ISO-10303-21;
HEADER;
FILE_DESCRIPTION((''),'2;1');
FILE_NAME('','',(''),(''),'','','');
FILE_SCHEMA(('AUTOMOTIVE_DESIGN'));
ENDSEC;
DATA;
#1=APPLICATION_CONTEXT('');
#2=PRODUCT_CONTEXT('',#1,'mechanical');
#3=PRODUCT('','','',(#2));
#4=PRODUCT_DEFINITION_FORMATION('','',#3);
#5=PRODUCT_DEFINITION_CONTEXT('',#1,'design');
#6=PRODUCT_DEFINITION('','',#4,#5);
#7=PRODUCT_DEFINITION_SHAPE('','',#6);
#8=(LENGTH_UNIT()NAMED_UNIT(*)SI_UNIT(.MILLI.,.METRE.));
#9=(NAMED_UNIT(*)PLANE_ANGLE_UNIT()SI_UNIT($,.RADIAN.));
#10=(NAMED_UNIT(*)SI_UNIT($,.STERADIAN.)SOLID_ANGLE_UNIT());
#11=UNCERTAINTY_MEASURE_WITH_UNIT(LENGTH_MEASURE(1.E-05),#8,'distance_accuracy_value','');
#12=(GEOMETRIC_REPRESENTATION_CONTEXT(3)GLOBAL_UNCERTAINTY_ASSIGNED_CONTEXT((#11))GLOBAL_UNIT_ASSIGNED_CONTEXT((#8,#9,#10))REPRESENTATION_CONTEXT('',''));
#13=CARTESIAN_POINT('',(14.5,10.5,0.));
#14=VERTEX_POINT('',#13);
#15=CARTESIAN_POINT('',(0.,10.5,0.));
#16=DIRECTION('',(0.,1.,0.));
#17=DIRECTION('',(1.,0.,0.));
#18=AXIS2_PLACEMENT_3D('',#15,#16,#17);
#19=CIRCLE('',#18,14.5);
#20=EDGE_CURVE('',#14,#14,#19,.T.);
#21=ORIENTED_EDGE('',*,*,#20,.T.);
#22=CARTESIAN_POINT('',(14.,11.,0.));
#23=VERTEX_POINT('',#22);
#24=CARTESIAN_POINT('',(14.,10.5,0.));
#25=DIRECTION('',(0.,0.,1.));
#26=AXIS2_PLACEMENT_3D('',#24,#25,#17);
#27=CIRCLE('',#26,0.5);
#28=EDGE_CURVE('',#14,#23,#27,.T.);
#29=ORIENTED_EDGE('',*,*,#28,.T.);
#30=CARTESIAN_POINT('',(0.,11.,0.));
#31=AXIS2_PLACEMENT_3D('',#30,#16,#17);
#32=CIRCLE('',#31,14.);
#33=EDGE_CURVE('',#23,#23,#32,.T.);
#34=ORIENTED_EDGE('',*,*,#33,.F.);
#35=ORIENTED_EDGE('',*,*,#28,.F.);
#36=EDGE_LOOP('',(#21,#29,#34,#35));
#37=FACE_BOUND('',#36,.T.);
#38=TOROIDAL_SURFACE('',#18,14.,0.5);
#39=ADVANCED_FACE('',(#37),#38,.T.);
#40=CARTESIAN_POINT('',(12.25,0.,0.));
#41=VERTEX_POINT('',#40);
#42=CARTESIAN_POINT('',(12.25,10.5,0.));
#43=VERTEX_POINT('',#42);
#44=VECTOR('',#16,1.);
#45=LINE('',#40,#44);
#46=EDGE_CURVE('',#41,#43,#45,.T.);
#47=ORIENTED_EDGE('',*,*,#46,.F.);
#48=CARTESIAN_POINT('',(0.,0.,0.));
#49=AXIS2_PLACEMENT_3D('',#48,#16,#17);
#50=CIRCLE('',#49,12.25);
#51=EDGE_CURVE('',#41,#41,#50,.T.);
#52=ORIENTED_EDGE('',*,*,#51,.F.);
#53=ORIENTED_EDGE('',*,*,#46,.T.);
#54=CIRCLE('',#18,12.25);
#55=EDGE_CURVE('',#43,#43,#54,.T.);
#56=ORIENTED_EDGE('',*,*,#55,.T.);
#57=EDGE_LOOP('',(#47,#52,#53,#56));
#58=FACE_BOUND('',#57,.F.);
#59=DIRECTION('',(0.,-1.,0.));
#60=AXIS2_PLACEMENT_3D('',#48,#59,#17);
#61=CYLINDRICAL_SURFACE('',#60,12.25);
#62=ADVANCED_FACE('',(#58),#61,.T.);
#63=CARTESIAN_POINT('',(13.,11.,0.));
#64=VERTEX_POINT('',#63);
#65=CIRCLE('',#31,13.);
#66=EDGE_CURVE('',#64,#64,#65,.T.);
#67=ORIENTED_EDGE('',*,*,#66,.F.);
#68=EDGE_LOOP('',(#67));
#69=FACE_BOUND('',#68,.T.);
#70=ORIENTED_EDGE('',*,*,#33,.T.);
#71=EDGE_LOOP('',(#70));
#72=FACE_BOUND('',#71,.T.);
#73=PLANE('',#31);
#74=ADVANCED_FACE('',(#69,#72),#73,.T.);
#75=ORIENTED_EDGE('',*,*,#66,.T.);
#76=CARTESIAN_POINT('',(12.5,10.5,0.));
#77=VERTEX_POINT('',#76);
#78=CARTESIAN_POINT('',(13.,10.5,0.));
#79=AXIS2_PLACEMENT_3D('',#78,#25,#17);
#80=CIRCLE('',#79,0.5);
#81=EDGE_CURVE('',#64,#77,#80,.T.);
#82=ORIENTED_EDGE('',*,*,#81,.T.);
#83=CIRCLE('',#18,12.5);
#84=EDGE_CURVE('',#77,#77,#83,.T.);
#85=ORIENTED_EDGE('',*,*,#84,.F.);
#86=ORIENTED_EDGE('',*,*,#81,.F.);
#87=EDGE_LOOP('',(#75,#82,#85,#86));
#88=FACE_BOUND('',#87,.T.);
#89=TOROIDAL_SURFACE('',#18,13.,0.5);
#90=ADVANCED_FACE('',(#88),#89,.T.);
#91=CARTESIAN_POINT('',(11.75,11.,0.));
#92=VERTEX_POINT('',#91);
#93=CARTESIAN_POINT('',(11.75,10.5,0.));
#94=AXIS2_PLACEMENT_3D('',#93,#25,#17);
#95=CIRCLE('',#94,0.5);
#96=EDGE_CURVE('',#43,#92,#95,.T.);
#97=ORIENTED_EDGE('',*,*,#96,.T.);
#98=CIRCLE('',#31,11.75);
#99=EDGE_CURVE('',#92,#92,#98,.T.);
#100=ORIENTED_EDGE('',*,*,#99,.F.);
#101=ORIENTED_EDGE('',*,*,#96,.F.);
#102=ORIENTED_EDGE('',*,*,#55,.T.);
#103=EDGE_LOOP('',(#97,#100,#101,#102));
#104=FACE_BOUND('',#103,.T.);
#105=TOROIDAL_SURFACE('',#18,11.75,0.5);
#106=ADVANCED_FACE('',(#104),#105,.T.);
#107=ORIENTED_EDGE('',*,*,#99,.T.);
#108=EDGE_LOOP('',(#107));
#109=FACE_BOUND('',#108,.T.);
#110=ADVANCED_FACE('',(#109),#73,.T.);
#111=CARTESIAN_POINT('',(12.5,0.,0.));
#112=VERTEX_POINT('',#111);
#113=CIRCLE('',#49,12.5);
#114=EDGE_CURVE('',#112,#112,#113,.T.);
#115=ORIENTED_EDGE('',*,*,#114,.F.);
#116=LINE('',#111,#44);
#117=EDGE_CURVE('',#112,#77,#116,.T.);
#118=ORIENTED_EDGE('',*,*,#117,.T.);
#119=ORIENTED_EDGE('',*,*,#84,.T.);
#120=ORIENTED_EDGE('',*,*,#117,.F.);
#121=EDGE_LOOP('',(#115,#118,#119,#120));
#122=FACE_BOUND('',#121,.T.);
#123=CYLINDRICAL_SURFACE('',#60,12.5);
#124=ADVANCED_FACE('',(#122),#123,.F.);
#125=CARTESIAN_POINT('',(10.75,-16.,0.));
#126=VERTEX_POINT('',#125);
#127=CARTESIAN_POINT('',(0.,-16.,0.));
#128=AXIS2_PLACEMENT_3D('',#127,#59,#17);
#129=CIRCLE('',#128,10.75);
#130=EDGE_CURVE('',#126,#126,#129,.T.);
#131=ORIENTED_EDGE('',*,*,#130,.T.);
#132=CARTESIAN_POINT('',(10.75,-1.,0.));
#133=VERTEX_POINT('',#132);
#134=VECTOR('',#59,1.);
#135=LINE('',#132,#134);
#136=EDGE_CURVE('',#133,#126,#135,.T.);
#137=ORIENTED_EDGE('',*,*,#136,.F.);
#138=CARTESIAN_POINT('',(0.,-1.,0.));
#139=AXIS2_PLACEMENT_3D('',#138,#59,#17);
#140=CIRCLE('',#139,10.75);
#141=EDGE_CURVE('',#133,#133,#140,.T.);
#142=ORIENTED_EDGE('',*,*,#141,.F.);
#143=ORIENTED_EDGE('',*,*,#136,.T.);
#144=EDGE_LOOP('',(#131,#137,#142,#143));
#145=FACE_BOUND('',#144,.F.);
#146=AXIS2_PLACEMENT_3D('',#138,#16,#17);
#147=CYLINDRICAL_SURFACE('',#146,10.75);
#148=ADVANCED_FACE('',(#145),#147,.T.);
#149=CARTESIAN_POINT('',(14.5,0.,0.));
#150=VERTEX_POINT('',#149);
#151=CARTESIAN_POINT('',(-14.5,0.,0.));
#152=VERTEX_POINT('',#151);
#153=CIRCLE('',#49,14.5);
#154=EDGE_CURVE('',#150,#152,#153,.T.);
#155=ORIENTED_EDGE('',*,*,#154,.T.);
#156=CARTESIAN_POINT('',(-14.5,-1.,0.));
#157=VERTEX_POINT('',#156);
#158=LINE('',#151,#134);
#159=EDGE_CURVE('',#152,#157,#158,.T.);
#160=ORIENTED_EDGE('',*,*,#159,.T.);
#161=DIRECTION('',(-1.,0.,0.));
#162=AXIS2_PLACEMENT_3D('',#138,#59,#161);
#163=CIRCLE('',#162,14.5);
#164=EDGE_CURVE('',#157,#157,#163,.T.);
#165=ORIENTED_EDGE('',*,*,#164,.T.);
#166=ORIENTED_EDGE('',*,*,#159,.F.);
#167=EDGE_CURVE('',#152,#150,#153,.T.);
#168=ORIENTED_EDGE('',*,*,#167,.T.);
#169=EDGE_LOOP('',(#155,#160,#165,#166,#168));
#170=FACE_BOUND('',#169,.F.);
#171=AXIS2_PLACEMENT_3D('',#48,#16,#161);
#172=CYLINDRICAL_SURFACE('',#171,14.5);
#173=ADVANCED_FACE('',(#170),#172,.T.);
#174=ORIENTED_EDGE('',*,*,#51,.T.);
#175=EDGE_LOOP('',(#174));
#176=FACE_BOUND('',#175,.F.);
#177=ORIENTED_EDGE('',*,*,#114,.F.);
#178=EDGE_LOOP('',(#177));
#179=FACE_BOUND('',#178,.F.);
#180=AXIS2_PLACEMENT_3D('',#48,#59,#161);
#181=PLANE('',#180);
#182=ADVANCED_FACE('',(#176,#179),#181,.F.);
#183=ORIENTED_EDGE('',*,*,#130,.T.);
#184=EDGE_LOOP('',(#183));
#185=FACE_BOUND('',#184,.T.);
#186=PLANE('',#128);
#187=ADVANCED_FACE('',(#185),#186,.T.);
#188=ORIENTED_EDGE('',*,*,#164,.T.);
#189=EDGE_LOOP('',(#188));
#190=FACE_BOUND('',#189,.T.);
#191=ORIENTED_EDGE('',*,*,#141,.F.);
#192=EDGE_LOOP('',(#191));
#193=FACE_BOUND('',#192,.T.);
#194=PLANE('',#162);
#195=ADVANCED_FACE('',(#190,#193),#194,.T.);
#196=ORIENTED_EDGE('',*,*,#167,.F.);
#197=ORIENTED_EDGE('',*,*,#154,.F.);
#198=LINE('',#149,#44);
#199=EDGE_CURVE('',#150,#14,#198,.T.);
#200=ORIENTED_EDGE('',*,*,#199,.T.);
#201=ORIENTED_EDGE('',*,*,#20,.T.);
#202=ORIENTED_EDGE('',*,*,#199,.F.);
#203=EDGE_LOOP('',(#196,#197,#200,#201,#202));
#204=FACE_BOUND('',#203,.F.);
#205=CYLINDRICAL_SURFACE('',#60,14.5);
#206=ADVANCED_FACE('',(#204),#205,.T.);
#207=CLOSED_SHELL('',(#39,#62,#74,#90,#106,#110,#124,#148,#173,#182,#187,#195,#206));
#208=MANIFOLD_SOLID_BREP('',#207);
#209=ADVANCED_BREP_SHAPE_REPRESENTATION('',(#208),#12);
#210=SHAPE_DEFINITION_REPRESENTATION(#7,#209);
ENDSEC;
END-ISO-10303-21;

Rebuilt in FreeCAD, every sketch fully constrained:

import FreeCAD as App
import Part
import Sketcher
Q = App.Units.Quantity


def edges_at(feature, points):
    """Names of the edges that pass closest to the given points."""
    edges = feature.Shape.Edges
    near = lambda p: min(range(len(edges)), key=lambda i: edges[i].distToShape(Part.Vertex(*p))[0])
    return sorted({f"Edge{near(p) + 1}" for p in points})

doc = App.newDocument("Part")
body = doc.addObject("PartDesign::Body", "Body")

# Sketch on XZ plane
sketch1 = body.newObject("Sketcher::SketchObject", "Sketch")
sketch1.AttachmentSupport = (doc.getObject("XZ_Plane"), [""])
sketch1.MapMode = "FlatFace"
sketch1.addGeometry([
    Part.Circle(App.Vector(0, 0, 0), App.Vector(0, 0, 1), 14),
    Part.Circle(App.Vector(0, 0, 0), App.Vector(0, 0, 1), 12),
], False)
sketch1.addConstraint([
    Sketcher.Constraint("Coincident", 0, 3, -1, 1),
    Sketcher.Constraint("Coincident", 1, 3, -1, 1),
    Sketcher.Constraint("Diameter", 0, Q("29 mm")),
    Sketcher.Constraint("Diameter", 1, Q("25 mm")),
])
pad1 = body.newObject("PartDesign::Pad", "Pad")
pad1.Profile = sketch1
pad1.Length = 11
pad1.Reversed = True

# Sketch on XZ plane
sketch2 = body.newObject("Sketcher::SketchObject", "Sketch001")
sketch2.AttachmentSupport = (doc.getObject("XZ_Plane"), [""])
sketch2.MapMode = "FlatFace"
sketch2.addGeometry(Part.Circle(App.Vector(0, 0, 0), App.Vector(0, 0, 1), 14), False)
sketch2.addConstraint([
    Sketcher.Constraint("Coincident", 0, 3, -1, 1),
    Sketcher.Constraint("Diameter", 0, Q("29 mm")),
])
pad2 = body.newObject("PartDesign::Pad", "Pad001")
pad2.Profile = sketch2
pad2.Length = 1

# Sketch on XZ plane
sketch3 = body.newObject("Sketcher::SketchObject", "Sketch002")
sketch3.AttachmentSupport = (doc.getObject("XZ_Plane"), [""])
sketch3.MapMode = "FlatFace"
sketch3.AttachmentOffset = App.Placement(App.Vector(0, 0, 1), App.Rotation())
sketch3.addGeometry(Part.Circle(App.Vector(0, 0, 0), App.Vector(0, 0, 1), 11), False)
sketch3.addConstraint([
    Sketcher.Constraint("Coincident", 0, 3, -1, 1),
    Sketcher.Constraint("Diameter", 0, Q("21.5 mm")),
])
pad3 = body.newObject("PartDesign::Pad", "Pad002")
pad3.Profile = sketch3
pad3.Length = 15

# Sketch on XZ plane
sketch4 = body.newObject("Sketcher::SketchObject", "Sketch003")
sketch4.AttachmentSupport = (doc.getObject("XZ_Plane"), [""])
sketch4.MapMode = "FlatFace"
sketch4.addGeometry(Part.Circle(App.Vector(0, 0, 0), App.Vector(0, 0, 1), 12), False)
sketch4.addConstraint([
    Sketcher.Constraint("Coincident", 0, 3, -1, 1),
    Sketcher.Constraint("Diameter", 0, Q("24.5 mm")),
])
pad4 = body.newObject("PartDesign::Pad", "Pad003")
pad4.Profile = sketch4
pad4.Length = 11
pad4.Reversed = True
doc.recompute()

fillet = body.newObject("PartDesign::Fillet", "Fillet")
fillet.Base = (pad4, edges_at(pad4, [(-12.25, 11, 0), (-14.5, 11, 0), (-12.5, 11, 0)]))
fillet.Radius = 0.5

doc.recompute()
